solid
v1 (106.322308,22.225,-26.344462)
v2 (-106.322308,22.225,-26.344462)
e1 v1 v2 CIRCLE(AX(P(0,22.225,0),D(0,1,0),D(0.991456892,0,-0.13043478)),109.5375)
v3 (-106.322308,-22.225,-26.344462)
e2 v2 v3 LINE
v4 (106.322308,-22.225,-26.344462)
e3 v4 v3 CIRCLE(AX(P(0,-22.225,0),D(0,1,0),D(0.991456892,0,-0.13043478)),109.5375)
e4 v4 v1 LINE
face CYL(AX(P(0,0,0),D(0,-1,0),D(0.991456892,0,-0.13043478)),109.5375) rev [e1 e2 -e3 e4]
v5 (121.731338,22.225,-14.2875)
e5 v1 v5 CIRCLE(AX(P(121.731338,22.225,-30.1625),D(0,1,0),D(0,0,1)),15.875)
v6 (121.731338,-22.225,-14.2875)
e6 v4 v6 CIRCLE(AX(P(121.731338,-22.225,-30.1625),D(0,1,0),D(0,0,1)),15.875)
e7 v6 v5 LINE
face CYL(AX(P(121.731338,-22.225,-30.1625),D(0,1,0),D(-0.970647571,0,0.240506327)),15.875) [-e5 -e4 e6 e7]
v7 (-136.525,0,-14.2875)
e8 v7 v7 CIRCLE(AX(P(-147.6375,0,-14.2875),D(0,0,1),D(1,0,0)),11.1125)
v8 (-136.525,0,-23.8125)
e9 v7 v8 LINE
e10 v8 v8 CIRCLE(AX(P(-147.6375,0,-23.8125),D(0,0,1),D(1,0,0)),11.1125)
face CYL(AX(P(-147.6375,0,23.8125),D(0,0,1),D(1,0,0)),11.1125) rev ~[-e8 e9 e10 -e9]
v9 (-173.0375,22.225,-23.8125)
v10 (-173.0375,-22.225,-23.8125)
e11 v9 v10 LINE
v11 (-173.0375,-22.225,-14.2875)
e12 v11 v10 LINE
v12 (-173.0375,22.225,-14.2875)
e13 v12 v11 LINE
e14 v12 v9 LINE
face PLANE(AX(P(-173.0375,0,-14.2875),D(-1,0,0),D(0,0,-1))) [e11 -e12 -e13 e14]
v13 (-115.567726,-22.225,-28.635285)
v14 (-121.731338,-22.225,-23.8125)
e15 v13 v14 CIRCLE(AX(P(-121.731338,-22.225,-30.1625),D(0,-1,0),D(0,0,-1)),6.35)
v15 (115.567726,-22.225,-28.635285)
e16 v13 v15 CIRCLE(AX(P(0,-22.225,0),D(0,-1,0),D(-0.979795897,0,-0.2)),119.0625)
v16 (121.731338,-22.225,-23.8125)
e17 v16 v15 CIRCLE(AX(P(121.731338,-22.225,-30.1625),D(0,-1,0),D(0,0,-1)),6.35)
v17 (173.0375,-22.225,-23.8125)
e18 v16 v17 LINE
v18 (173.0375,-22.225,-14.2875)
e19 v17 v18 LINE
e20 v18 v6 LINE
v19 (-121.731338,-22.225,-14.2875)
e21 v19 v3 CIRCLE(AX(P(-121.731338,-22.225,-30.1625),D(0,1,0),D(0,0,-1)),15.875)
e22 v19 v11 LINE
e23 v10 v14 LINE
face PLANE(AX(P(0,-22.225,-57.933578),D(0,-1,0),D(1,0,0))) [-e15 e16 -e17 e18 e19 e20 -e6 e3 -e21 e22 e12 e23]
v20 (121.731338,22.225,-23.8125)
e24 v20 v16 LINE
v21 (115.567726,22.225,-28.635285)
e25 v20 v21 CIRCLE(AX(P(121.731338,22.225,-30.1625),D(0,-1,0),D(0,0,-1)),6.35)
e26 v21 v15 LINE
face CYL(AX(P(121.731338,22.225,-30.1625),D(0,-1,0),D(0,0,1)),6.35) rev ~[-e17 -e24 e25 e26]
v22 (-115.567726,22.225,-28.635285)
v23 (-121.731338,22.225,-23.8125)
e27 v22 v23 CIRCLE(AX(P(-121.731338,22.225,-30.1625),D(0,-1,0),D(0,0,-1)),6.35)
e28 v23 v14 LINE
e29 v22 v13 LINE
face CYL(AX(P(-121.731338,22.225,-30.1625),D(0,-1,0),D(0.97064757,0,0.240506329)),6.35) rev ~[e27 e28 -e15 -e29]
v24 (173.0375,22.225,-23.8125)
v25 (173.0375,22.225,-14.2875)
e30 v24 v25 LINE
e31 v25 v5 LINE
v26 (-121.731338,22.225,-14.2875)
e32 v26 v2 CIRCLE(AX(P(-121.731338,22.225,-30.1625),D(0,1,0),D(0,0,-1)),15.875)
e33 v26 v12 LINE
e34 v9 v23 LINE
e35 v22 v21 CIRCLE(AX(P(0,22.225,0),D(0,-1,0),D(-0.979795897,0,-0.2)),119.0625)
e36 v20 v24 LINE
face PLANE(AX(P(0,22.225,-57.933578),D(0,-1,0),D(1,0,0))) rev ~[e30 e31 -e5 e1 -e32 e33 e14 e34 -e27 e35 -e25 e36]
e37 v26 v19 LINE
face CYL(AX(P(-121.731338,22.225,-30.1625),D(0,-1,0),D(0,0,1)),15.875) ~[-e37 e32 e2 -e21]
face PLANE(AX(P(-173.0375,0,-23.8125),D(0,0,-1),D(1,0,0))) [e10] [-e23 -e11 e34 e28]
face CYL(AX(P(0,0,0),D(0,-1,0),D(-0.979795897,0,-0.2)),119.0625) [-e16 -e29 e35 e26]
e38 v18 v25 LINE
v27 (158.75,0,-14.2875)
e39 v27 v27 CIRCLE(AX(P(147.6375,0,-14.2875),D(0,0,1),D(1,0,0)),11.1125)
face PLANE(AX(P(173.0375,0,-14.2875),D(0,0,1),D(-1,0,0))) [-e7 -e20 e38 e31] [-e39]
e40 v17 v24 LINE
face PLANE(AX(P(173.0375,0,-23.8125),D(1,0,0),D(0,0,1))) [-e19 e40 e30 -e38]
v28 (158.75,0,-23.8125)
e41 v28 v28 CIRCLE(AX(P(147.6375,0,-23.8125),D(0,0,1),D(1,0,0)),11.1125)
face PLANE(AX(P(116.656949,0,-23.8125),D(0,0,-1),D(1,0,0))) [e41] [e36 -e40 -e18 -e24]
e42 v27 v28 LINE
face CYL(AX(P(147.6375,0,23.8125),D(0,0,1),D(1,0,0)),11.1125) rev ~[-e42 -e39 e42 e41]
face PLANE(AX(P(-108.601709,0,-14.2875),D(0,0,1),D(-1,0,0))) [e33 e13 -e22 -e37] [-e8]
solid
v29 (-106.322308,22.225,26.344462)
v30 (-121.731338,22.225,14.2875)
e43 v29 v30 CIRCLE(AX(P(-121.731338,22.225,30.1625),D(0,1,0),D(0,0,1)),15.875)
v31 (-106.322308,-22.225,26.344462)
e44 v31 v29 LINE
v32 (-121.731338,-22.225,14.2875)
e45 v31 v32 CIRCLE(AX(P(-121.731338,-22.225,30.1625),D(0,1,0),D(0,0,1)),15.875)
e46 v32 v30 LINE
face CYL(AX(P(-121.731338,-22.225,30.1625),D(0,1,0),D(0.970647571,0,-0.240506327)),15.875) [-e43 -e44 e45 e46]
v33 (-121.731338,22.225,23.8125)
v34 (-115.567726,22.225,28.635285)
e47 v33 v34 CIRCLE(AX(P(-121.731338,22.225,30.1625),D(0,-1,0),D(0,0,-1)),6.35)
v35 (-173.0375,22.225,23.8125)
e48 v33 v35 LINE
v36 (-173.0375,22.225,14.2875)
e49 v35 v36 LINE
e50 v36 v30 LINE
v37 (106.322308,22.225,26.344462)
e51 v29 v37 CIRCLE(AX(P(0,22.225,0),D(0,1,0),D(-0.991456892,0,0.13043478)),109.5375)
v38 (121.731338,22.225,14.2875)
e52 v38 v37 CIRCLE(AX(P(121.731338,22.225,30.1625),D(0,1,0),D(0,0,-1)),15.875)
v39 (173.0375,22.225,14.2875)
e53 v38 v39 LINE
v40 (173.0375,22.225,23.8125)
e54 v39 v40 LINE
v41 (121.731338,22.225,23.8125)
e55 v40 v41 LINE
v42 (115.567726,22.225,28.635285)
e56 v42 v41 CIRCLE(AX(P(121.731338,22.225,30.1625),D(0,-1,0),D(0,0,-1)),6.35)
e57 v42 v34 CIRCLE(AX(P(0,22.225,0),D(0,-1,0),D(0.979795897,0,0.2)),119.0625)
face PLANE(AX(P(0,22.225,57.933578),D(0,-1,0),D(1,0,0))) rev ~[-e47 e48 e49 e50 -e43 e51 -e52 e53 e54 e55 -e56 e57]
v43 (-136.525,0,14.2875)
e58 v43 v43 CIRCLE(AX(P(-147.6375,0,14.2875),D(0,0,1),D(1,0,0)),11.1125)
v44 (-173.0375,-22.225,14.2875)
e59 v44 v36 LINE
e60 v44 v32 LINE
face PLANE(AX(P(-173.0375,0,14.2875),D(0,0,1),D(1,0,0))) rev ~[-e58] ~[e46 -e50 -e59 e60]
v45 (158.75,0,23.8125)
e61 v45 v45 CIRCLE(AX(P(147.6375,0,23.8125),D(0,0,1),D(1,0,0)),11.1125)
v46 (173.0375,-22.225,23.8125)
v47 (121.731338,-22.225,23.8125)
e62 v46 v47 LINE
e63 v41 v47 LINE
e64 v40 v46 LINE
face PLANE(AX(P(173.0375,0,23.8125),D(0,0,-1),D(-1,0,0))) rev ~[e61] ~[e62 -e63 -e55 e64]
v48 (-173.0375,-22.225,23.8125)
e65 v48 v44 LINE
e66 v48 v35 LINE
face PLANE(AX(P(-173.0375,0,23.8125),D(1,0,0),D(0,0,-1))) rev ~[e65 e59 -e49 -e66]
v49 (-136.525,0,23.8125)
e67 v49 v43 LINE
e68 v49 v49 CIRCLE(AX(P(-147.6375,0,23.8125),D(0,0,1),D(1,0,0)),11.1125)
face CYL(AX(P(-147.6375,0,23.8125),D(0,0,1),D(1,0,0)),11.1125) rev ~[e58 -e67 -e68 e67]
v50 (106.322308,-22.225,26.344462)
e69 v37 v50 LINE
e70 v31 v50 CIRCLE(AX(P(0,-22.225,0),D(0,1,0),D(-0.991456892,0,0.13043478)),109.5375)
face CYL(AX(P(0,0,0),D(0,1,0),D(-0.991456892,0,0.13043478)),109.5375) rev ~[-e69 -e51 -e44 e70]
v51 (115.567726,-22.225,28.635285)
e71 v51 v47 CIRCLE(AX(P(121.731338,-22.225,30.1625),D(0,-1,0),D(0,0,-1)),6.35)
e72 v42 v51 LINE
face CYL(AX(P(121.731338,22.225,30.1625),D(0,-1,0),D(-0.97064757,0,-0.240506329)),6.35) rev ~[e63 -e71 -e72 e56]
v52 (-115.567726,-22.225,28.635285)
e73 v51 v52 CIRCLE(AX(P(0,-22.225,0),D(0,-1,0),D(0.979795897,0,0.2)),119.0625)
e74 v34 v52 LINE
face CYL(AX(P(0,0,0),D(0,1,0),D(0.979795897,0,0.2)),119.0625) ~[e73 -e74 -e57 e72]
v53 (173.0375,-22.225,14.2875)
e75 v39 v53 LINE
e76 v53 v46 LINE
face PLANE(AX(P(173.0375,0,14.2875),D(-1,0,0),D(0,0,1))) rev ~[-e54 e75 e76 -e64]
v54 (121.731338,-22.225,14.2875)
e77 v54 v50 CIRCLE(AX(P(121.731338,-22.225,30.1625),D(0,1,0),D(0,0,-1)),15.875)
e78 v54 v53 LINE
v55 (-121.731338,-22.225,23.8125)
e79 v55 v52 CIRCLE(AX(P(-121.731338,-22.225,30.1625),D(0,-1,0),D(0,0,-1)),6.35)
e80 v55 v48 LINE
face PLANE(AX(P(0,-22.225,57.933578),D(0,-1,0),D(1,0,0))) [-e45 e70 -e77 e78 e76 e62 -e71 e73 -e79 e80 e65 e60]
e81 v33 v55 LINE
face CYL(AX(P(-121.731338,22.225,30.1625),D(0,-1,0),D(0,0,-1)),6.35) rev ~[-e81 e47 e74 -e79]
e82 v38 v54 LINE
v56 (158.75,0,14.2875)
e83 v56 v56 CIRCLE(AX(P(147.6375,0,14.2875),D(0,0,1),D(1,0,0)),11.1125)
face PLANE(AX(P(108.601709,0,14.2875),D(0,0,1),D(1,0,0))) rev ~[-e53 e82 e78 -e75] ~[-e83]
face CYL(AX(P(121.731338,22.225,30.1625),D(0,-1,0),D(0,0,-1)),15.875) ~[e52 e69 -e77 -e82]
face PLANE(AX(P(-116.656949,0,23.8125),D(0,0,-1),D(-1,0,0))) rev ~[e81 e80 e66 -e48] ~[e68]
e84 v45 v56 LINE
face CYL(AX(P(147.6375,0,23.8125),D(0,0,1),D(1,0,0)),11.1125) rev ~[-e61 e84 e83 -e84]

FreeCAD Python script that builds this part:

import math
import FreeCAD as App
import Part
import Sketcher
Q = App.Units.Quantity


def edges_at(feature, points):
    """Names of the edges that pass closest to the given points."""
    edges = feature.Shape.Edges
    near = lambda p: min(range(len(edges)), key=lambda i: edges[i].distToShape(Part.Vertex(*p))[0])
    return sorted({f"Edge{near(p) + 1}" for p in points})

doc = App.newDocument("Part")
body = doc.addObject("PartDesign::Body", "Body")
body.AllowCompound = True

# Sketch on XZ plane
sketch1 = body.newObject("Sketcher::SketchObject", "Sketch")
sketch1.AttachmentSupport = (doc.getObject("XZ_Plane"), [""])
sketch1.MapMode = "FlatFace"
sketch1.addGeometry([
    Part.ArcOfCircle(Part.Circle(App.Vector(0, 0, 0), App.Vector(0, 0, 1), 109.5375), math.radians(7.494717), math.radians(172.505283)),  # 0
    Part.LineSegment(App.Vector(108.601709, 14.2875, 0), App.Vector(173.0375, 14.2875, 0)),  # 1
    Part.LineSegment(App.Vector(173.0375, 14.2875, 0), App.Vector(173.0375, 23.8125, 0)),  # 2
    Part.LineSegment(App.Vector(173.0375, 23.8125, 0), App.Vector(116.656949, 23.8125, 0)),  # 3
    Part.ArcOfCircle(Part.Circle(App.Vector(0, 0, 0), App.Vector(0, 0, 1), 119.0625), math.radians(11.536959), math.radians(168.463041)),  # 4
    Part.LineSegment(App.Vector(-116.656949, 23.8125, 0), App.Vector(-173.0375, 23.8125, 0)),  # 5
    Part.LineSegment(App.Vector(-173.0375, 23.8125, 0), App.Vector(-173.0375, 14.2875, 0)),  # 6
    Part.LineSegment(App.Vector(-173.0375, 14.2875, 0), App.Vector(-108.601709, 14.2875, 0)),  # 7
    Part.ArcOfCircle(Part.Circle(App.Vector(0, 0, 0), App.Vector(0, 0, 1), 109.5375), math.radians(-172.505283), math.radians(-7.494717)),  # 8
    Part.LineSegment(App.Vector(-108.601709, -14.2875, 0), App.Vector(-173.0375, -14.2875, 0)),  # 9
    Part.LineSegment(App.Vector(-173.0375, -14.2875, 0), App.Vector(-173.0375, -23.8125, 0)),  # 10
    Part.LineSegment(App.Vector(-173.0375, -23.8125, 0), App.Vector(-116.656949, -23.8125, 0)),  # 11
    Part.ArcOfCircle(Part.Circle(App.Vector(0, 0, 0), App.Vector(0, 0, 1), 119.0625), math.radians(-168.463041), math.radians(-11.536959)),  # 12
    Part.LineSegment(App.Vector(116.656949, -23.8125, 0), App.Vector(173.0375, -23.8125, 0)),  # 13
    Part.LineSegment(App.Vector(173.0375, -23.8125, 0), App.Vector(173.0375, -14.2875, 0)),  # 14
    Part.LineSegment(App.Vector(173.0375, -14.2875, 0), App.Vector(108.601709, -14.2875, 0)),  # 15
], False)
sketch1.addConstraint([
    Sketcher.Constraint("Coincident", 0, 1, 1, 1),
    Sketcher.Constraint("Coincident", 1, 2, 2, 1),
    Sketcher.Constraint("Coincident", 2, 2, 3, 1),
    Sketcher.Constraint("Coincident", 3, 2, 4, 1),
    Sketcher.Constraint("Coincident", 4, 2, 5, 1),
    Sketcher.Constraint("Coincident", 5, 2, 6, 1),
    Sketcher.Constraint("Coincident", 6, 2, 7, 1),
    Sketcher.Constraint("Coincident", 7, 2, 0, 2),
    Sketcher.Constraint("Coincident", 8, 1, 9, 1),
    Sketcher.Constraint("Coincident", 9, 2, 10, 1),
    Sketcher.Constraint("Coincident", 10, 2, 11, 1),
    Sketcher.Constraint("Coincident", 11, 2, 12, 1),
    Sketcher.Constraint("Coincident", 12, 2, 13, 1),
    Sketcher.Constraint("Coincident", 13, 2, 14, 1),
    Sketcher.Constraint("Coincident", 14, 2, 15, 1),
    Sketcher.Constraint("Coincident", 15, 2, 8, 2),
    Sketcher.Constraint("Horizontal", 1),
    Sketcher.Constraint("Vertical", 2),
    Sketcher.Constraint("Horizontal", 3),
    Sketcher.Constraint("Horizontal", 5),
    Sketcher.Constraint("Vertical", 6),
    Sketcher.Constraint("Horizontal", 7),
    Sketcher.Constraint("Horizontal", 9),
    Sketcher.Constraint("Vertical", 10),
    Sketcher.Constraint("Horizontal", 11),
    Sketcher.Constraint("Horizontal", 13),
    Sketcher.Constraint("Vertical", 14),
    Sketcher.Constraint("Horizontal", 15),
    Sketcher.Constraint("Coincident", 0, 3, -1, 1),
    Sketcher.Constraint("Coincident", 4, 3, -1, 1),
    Sketcher.Constraint("Coincident", 8, 3, -1, 1),
    Sketcher.Constraint("Coincident", 12, 3, -1, 1),
    Sketcher.Constraint("Equal", 0, 8),
    Sketcher.Constraint("Equal", 4, 12),
    Sketcher.Constraint("Symmetric", 1, 2, 9, 2, -1, 1),
    Sketcher.Constraint("Symmetric", 5, 2, 13, 2, -1, 1),
    Sketcher.Constraint("Symmetric", 2, 2, 5, 2, -2),
    Sketcher.Constraint("Horizontal", 1, 2, 6, 2),
    Sketcher.Constraint("Horizontal", 11, 2, 12, 2),
    Sketcher.Constraint("Horizontal", 9, 2, 14, 2),
    Sketcher.Constraint("Radius", 0, Q("4.3125 in")),
    Sketcher.Constraint("Radius", 4, Q("4.6875 in")),
    Sketcher.Constraint("DistanceY", 8, 1, 4, 2, Q("1.5 in")),
    Sketcher.Constraint("DistanceY", 2, 1, 2, 2, Q("0.375 in")),
    Sketcher.Constraint("DistanceX", -1, 1, 1, 2, Q("6.8125 in")),
])
pad1 = body.newObject("PartDesign::Pad", "Pad")
pad1.Profile = sketch1
pad1.Length = Q("1.75 in")
pad1.Midplane = True
doc.recompute()

fillet = body.newObject("PartDesign::Fillet", "Fillet")
fillet.Base = (pad1, edges_at(pad1, [
    (-116.657, 0, 23.812),
    (116.657, 0, 23.812),
    (116.657, 0, -23.812),
    (-116.657, 0, -23.812),
]))
fillet.Radius = Q("0.25 in")
doc.recompute()

fillet2 = body.newObject("PartDesign::Fillet", "Fillet001")
fillet2.Base = (fillet, edges_at(fillet, [
    (108.602, 0, 14.287),
    (108.602, 0, -14.287),
    (-108.602, 0, -14.287),
    (-108.602, 0, 14.287),
]))
fillet2.Radius = Q("0.625 in")

# Sketch on XY plane
sketch2 = body.newObject("Sketcher::SketchObject", "Sketch001")
sketch2.AttachmentSupport = (doc.getObject("XY_Plane"), [""])
sketch2.MapMode = "FlatFace"
sketch2.AttachmentOffset = App.Placement(App.Vector(0, 0, 0.9375 * 25.4), App.Rotation())
sketch2.addGeometry([
    Part.Circle(App.Vector(-147.6375, 0, 0), App.Vector(0, 0, 1), 11.1125),
    Part.Circle(App.Vector(147.6375, 0, 0), App.Vector(0, 0, 1), 11.1125),
], False)
sketch2.addConstraint([
    Sketcher.Constraint("Equal", 0, 1),
    Sketcher.Constraint("Symmetric", 0, 3, 1, 3, -1, 1),
    Sketcher.Constraint("PointOnObject", 0, 3, -1),
    Sketcher.Constraint("Diameter", 0, Q("0.875 in")),
    Sketcher.Constraint("DistanceX", 0, 3, -1, 1, Q("5.8125 in")),
])
pocket1 = body.newObject("PartDesign::Pocket", "Pocket")
pocket1.Profile = sketch2
pocket1.Type = "ThroughAll"

doc.recompute()
